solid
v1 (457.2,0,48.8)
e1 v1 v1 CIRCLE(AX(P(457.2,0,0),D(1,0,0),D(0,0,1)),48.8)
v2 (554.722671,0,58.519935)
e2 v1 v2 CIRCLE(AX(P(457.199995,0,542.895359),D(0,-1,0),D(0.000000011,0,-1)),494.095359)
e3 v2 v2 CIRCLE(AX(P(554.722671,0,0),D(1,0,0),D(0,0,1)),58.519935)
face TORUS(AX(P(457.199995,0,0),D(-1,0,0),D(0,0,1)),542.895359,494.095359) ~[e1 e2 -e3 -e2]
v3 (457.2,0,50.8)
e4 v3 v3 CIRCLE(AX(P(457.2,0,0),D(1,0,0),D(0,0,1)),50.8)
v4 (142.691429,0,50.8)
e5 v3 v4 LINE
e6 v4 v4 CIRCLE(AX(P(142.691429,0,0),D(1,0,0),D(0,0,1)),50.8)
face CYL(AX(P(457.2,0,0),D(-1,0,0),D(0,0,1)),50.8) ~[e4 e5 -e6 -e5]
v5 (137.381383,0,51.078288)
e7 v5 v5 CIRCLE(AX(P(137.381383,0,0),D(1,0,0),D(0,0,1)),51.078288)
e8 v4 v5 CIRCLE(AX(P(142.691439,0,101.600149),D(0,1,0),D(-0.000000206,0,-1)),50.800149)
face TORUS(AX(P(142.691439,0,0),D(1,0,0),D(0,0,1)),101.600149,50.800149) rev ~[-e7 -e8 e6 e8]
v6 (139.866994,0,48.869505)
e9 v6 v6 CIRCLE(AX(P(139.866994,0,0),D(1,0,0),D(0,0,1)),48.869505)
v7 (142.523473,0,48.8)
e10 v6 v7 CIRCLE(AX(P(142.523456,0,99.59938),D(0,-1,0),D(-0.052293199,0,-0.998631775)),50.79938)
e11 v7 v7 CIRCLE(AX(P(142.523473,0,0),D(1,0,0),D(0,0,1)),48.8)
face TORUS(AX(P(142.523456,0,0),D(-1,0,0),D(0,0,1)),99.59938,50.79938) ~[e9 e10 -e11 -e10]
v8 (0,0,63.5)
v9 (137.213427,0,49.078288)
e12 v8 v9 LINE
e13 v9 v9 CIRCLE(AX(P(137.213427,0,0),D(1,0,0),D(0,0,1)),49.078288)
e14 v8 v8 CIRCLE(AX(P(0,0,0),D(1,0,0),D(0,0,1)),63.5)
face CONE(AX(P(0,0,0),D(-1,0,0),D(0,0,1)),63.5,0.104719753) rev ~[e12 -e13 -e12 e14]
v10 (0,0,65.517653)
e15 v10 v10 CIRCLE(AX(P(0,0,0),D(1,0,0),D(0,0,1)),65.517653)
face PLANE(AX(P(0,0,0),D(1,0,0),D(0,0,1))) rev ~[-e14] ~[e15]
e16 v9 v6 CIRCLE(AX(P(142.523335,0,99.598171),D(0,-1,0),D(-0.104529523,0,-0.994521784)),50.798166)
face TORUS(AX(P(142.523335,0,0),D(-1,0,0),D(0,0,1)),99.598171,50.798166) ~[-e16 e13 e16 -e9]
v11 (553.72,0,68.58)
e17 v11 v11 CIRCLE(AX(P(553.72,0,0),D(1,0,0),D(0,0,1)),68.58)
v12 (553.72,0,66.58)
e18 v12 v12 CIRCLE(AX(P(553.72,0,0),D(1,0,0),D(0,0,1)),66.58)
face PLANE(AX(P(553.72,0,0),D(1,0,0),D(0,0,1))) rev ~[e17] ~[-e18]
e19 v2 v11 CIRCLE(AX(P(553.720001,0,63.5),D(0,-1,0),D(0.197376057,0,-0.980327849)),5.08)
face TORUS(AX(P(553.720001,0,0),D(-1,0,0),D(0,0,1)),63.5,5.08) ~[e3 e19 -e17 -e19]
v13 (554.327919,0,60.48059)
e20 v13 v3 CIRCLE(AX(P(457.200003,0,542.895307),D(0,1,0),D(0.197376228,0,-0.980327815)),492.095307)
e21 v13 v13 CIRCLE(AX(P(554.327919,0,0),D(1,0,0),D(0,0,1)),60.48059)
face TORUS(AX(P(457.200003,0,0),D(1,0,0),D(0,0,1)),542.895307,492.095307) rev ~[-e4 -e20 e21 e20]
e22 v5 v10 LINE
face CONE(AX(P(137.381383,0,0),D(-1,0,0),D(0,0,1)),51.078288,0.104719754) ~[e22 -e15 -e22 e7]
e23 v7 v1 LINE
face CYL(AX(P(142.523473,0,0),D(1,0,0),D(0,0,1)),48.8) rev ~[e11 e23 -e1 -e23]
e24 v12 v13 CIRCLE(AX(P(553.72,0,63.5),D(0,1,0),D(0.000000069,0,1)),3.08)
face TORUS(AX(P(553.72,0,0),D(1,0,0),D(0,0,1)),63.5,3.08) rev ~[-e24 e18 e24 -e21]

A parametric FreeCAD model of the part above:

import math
import FreeCAD as App
import Part
import Sketcher
from FreeCAD import Vector
Q = App.Units.Quantity

doc = App.newDocument("Part")
body = doc.addObject("PartDesign::Body", "Body")

sketch1 = body.newObject("Sketcher::SketchObject", "Sketch")
sketch1.AttachmentSupport = (doc.getObject("XZ_Plane"), [""])
sketch1.MapMode = "FlatFace"
sketch1.addGeometry(Part.LineSegment(Vector(457.2, 50.8, 0), Vector(142.691429, 50.8, 0)), False)
sketch1.addGeometry(Part.ArcOfCircle(Part.Circle(Vector(142.691439, 101.600149, 0), Vector(0, 0, 1), 50.800149), math.radians(-95.999994), math.radians(-90.000012)), False)
sketch1.addGeometry(Part.LineSegment(Vector(137.381383, 51.078288, 0), Vector(0, 65.517653, 0)), False)
sketch1.addGeometry(Part.LineSegment(Vector(0, 65.517653, 0), Vector(0, 63.5, 0)), False)
sketch1.addGeometry(Part.LineSegment(Vector(0, 63.5, 0), Vector(137.213427, 49.078288, 0)), False)
sketch1.addGeometry(Part.ArcOfCircle(Part.Circle(Vector(142.523335, 99.598171, 0), Vector(0, 0, 1), 50.798166), math.radians(-96.000061), math.radians(-92.997482)), False)
sketch1.addGeometry(Part.ArcOfCircle(Part.Circle(Vector(142.523456, 99.59938, 0), Vector(0, 0, 1), 50.79938), math.radians(-92.997547), math.radians(-89.999981)), False)
sketch1.addGeometry(Part.LineSegment(Vector(142.523473, 48.8, 0), Vector(457.2, 48.8, 0)), False)
sketch1.addGeometry(Part.ArcOfCircle(Part.Circle(Vector(457.199995, 542.895359, 0), Vector(0, 0, 1), 494.095359), math.radians(-89.999999), math.radians(-78.61643)), False)
sketch1.addGeometry(Part.ArcOfCircle(Part.Circle(Vector(553.720001, 63.5, 0), Vector(0, 0, 1), 5.08), math.radians(-78.61644), math.radians(90.000008)), False)
sketch1.addGeometry(Part.LineSegment(Vector(553.72, 68.58, 0), Vector(553.72, 66.58, 0)), False)
sketch1.addGeometry(Part.ArcOfCircle(Part.Circle(Vector(553.72, 63.5, 0), Vector(0, 0, 1), 3.08), math.radians(-78.616423), math.radians(89.999996)), False)
sketch1.addGeometry(Part.ArcOfCircle(Part.Circle(Vector(457.200003, 542.895307, 0), Vector(0, 0, 1), 492.095307), math.radians(-90), math.radians(-78.61643)), False)
sketch1.addConstraint(Sketcher.Constraint("Coincident", 0, 2, 1, 2))
sketch1.addConstraint(Sketcher.Constraint("Coincident", 1, 1, 2, 1))
sketch1.addConstraint(Sketcher.Constraint("Coincident", 2, 2, 3, 1))
sketch1.addConstraint(Sketcher.Constraint("Coincident", 3, 2, 4, 1))
sketch1.addConstraint(Sketcher.Constraint("Coincident", 4, 2, 5, 1))
sketch1.addConstraint(Sketcher.Constraint("Coincident", 5, 2, 6, 1))
sketch1.addConstraint(Sketcher.Constraint("Coincident", 6, 2, 7, 1))
sketch1.addConstraint(Sketcher.Constraint("Coincident", 7, 2, 8, 1))
sketch1.addConstraint(Sketcher.Constraint("Coincident", 8, 2, 9, 1))
sketch1.addConstraint(Sketcher.Constraint("Coincident", 9, 2, 10, 1))
sketch1.addConstraint(Sketcher.Constraint("Coincident", 10, 2, 11, 2))
sketch1.addConstraint(Sketcher.Constraint("Coincident", 11, 1, 12, 2))
sketch1.addConstraint(Sketcher.Constraint("Coincident", 12, 1, 0, 1))
sketch1.addConstraint(Sketcher.Constraint("Horizontal", 0))
sketch1.addConstraint(Sketcher.Constraint("Vertical", 3))
sketch1.addConstraint(Sketcher.Constraint("Horizontal", 7))
sketch1.addConstraint(Sketcher.Constraint("Vertical", 10))
sketch1.addConstraint(Sketcher.Constraint("Coincident", 11, 3, 9, 3))
sketch1.addConstraint(Sketcher.Constraint("PointOnObject", 2, 2, -2))
sketch1.addConstraint(Sketcher.Constraint("DistanceY", 10, 2, 10, 1, Q("2 mm")))
sketch1.addConstraint(Sketcher.Constraint("Radius", 9, Q("5.08 mm")))
sketch1.addConstraint(Sketcher.Constraint("DistanceY", 4, 2, 1, 1, Q("2 mm")))
sketch1.addConstraint(Sketcher.Constraint("DistanceY", 6, 2, 0, 2, Q("2 mm")))
sketch1.addConstraint(Sketcher.Constraint("DistanceY", -1, 1, 9, 3, Q("63.5 mm")))
sketch1.addConstraint(Sketcher.Constraint("DistanceY", -1, 1, 0, 2, Q("50.8 mm")))
sketch1.addConstraint(Sketcher.Constraint("DistanceY", -1, 1, 3, 2, Q("63.5 mm")))
sketch1.addConstraint(Sketcher.Constraint("DistanceX", -1, 1, 7, 2, Q("457.2 mm")))
sketch1.addConstraint(Sketcher.Constraint("DistanceX", -1, 1, 12, 1, Q("457.2 mm")))
sketch1.addConstraint(Sketcher.Constraint("DistanceX", -1, 1, 9, 3, Q("553.720001 mm")))
sketch1.addConstraint(Sketcher.Constraint("DistanceX", -1, 1, 9, 2, Q("553.72 mm")))
sketch1.addConstraint(Sketcher.Constraint("Radius", 1, Q("50.800149 mm")))
sketch1.addConstraint(Sketcher.Constraint("Radius", 6, Q("50.79938 mm")))
sketch1.addConstraint(Sketcher.Constraint("Radius", 8, Q("494.095359 mm")))
sketch1.addConstraint(Sketcher.Constraint("Radius", 5, Q("50.798166 mm")))
sketch1.addConstraint(Sketcher.Constraint("Radius", 12, Q("492.095307 mm")))
sketch1.addConstraint(Sketcher.Constraint("DistanceX", 0, 2, 0, 1, Q("314.508571 mm")))
sketch1.addConstraint(Sketcher.Constraint("Distance", 2, Q("138.138118 mm")))
sketch1.addConstraint(Sketcher.Constraint("DistanceX", 7, 1, 7, 2, Q("314.676527 mm")))
sketch1.addConstraint(Sketcher.Constraint("DistanceY", 3, 2, 3, 1, Q("2.017653 mm")))
sketch1.addConstraint(Sketcher.Constraint("DistanceX", -1, 1, 1, 3, Q("142.691439 mm")))
sketch1.addConstraint(Sketcher.Constraint("DistanceY", -1, 1, 5, 3, Q("99.598171 mm")))
sketch1.addConstraint(Sketcher.Constraint("DistanceX", -1, 1, 8, 2, Q("554.722671 mm")))
sketch1.addConstraint(Sketcher.Constraint("DistanceX", -1, 1, 11, 1, Q("554.327919 mm")))
sketch1.addConstraint(Sketcher.Constraint("DistanceX", 6, 3, 8, 3, Q("314.676539 mm")))
sketch1.addConstraint(Sketcher.Constraint("DistanceX", 1, 1, 5, 2, Q("2.485611 mm")))
revolution = body.newObject("PartDesign::Revolution", "Revolution")
revolution.Profile = sketch1
revolution.ReferenceAxis = (sketch1, ["H_Axis"])
revolution.Angle = 360

doc.recompute()
